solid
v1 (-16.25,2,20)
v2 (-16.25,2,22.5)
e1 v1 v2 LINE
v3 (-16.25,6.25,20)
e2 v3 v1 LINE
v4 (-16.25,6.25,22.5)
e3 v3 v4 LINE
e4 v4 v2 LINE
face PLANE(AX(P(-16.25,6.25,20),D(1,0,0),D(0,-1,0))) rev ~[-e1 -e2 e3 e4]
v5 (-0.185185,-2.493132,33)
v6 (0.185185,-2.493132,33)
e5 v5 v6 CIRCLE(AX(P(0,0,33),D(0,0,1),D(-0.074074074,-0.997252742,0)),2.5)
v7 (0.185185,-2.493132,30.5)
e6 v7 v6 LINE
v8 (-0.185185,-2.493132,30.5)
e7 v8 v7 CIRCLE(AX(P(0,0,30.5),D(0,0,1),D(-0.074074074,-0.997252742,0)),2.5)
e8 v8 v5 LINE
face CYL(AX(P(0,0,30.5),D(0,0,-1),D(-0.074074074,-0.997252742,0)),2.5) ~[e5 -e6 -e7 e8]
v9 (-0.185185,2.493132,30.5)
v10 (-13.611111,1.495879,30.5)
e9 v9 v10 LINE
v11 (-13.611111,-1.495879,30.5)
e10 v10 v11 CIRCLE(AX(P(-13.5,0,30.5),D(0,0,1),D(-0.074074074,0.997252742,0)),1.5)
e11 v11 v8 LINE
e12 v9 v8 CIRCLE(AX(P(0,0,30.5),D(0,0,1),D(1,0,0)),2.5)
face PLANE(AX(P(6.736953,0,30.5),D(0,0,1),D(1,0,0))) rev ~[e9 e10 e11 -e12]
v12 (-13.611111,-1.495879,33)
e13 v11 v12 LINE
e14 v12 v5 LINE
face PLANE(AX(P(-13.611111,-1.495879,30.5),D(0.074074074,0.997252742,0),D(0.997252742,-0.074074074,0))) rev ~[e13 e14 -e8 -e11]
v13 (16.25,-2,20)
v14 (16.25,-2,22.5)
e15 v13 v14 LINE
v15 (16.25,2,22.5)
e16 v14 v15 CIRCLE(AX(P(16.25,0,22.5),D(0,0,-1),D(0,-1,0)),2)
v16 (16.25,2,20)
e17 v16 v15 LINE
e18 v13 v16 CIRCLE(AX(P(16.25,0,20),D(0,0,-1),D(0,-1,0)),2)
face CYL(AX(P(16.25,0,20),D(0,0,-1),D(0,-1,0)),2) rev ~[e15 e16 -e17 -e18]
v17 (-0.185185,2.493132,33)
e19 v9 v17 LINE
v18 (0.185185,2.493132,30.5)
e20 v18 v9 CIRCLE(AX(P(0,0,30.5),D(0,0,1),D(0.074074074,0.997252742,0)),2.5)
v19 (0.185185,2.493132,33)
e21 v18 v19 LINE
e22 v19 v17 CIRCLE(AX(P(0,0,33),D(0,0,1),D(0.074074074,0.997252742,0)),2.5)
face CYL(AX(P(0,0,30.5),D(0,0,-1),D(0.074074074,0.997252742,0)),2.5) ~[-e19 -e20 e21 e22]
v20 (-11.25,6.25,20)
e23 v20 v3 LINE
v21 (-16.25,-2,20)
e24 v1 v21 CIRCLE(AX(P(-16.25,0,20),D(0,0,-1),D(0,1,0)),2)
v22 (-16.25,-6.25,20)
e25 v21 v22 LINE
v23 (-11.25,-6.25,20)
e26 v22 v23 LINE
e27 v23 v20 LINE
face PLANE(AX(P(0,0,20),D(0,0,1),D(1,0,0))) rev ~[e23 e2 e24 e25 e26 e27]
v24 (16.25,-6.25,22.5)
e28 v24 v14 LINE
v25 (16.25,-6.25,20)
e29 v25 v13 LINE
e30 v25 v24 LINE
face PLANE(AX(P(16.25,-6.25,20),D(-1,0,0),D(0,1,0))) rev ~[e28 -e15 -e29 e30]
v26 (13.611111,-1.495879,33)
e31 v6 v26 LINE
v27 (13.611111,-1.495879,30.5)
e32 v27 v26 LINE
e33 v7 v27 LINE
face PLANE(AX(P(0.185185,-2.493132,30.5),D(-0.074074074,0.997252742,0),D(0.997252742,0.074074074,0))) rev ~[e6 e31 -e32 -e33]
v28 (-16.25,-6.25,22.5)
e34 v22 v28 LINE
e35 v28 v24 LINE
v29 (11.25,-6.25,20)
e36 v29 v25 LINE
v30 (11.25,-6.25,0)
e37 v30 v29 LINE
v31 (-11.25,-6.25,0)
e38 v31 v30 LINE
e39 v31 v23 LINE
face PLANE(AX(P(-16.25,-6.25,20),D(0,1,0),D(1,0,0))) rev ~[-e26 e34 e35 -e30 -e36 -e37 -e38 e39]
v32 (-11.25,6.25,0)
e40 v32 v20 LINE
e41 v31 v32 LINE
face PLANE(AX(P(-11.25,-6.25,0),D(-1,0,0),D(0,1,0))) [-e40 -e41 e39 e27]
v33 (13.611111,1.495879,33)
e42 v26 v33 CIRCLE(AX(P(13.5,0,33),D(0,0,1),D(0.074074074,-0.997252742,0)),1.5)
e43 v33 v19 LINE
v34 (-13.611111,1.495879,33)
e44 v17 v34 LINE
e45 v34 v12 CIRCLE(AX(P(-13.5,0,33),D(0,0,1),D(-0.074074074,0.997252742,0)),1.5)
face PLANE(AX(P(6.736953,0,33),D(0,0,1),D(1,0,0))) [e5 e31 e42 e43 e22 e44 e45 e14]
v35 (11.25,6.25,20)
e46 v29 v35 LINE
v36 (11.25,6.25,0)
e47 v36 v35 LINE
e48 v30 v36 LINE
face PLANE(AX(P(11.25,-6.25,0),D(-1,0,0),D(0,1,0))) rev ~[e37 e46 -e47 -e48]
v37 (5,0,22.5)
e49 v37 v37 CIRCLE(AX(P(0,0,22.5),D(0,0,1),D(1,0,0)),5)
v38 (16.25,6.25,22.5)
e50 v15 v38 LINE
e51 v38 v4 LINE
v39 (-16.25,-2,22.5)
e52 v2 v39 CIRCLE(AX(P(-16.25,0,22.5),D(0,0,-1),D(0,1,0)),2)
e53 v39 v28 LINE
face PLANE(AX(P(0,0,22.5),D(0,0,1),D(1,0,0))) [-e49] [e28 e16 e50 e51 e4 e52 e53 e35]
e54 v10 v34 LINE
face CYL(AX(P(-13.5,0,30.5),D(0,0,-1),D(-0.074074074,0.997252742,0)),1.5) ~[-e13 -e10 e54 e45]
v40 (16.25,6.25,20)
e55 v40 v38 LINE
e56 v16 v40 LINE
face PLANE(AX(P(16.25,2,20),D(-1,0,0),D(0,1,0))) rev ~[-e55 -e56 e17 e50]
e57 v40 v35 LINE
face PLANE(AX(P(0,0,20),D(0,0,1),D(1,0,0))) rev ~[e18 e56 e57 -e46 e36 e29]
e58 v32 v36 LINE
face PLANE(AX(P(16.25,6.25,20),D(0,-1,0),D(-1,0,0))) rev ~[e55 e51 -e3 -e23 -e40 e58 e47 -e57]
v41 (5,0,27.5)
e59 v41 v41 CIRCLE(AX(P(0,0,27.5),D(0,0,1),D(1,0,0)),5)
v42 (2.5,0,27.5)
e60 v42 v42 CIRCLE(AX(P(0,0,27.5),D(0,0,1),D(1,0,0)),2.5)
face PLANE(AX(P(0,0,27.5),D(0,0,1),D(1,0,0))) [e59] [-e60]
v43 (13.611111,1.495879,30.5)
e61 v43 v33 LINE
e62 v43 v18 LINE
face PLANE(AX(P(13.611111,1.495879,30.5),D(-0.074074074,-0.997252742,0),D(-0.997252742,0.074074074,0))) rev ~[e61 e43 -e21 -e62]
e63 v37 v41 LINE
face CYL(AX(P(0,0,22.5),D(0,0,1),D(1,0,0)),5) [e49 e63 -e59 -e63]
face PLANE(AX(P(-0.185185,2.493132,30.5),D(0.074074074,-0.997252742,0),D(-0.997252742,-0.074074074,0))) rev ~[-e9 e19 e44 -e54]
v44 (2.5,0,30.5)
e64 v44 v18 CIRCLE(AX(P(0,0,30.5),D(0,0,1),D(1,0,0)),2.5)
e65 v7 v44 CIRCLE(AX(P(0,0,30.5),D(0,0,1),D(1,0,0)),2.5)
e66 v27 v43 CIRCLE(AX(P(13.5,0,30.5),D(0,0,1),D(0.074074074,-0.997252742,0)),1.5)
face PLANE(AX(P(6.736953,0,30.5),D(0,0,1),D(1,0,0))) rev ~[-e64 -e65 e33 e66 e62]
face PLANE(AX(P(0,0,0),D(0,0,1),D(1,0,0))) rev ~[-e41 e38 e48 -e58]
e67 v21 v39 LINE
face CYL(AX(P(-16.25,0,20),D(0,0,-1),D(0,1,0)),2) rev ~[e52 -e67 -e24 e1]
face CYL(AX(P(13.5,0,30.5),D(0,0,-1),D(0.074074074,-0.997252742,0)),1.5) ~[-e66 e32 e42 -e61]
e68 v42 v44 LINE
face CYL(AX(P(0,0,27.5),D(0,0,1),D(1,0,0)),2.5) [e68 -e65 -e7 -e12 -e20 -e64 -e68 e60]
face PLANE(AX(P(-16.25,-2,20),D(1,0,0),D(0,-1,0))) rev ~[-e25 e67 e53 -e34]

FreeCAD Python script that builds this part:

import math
import FreeCAD as App
import Part
import Sketcher

V = App.Vector
Q = App.Units.Quantity


def add_polygon(sketch, points):
    """Adds a closed chain of lines whose ends are joined by coincident constraints."""
    first, n = sketch.GeometryCount, len(points)
    for a, b in zip(points, points[1:] + points[:1]):
        sketch.addGeometry(Part.LineSegment(App.Vector(*a, 0), App.Vector(*b, 0)), False)
    for i in range(n):
        sketch.addConstraint(Sketcher.Constraint("Coincident", first + i, 2, first + (i + 1) % n, 1))

doc = App.newDocument("Part")
body = doc.addObject("PartDesign::Body", "Body")

sketch1 = body.newObject("Sketcher::SketchObject", "Sketch")
sketch1.AttachmentSupport = (doc.getObject("XY_Plane"), [""])
sketch1.MapMode = "FlatFace"
add_polygon(sketch1, [(-11, 6), (-11, -6), (11, -6), (11, 6)])
sketch1.addConstraint([
    Sketcher.Constraint("Vertical", 0),
    Sketcher.Constraint("Horizontal", 1),
    Sketcher.Constraint("Vertical", 2),
    Sketcher.Constraint("Horizontal", 3),
    Sketcher.Constraint("Symmetric", 0, 2, 2, 2, -1, 1),
    Sketcher.Constraint("DistanceX", 1, 1, 1, 2, Q("22.5 mm")),
    Sketcher.Constraint("DistanceY", 0, 2, 0, 1, Q("12.5 mm")),
])
pad1 = body.newObject("PartDesign::Pad", "Pad")
pad1.Profile = sketch1
pad1.Length = 20

sketch2 = body.newObject("Sketcher::SketchObject", "Sketch001")
sketch2.AttachmentSupport = (doc.getObject("XY_Plane"), [""])
sketch2.MapMode = "FlatFace"
sketch2.AttachmentOffset = App.Placement(V(0, 0, 20), App.Rotation())
sketch2.addGeometry([
    Part.LineSegment(V(16.2, 2, 0), V(16.2, 6.2, 0)),
    Part.LineSegment(V(16.2, 6.2, 0), V(-16.2, 6.2, 0)),
    Part.LineSegment(V(-16.2, 6.2, 0), V(-16.2, 2, 0)),
    Part.ArcOfCircle(Part.Circle(V(-16.2, 0, 0), V(0, 0, 1), 2), math.radians(-90), math.radians(90)),
    Part.LineSegment(V(-16.2, -2, 0), V(-16.2, -6.2, 0)),
    Part.LineSegment(V(-16.2, -6.2, 0), V(16.2, -6.2, 0)),
    Part.LineSegment(V(16.2, -6.2, 0), V(16.2, -2, 0)),
    Part.ArcOfCircle(Part.Circle(V(16.2, 0, 0), V(0, 0, 1), 2), math.radians(90), math.radians(270)),
], False)
sketch2.addConstraint([
    Sketcher.Constraint("Coincident", 0, 2, 1, 1),
    Sketcher.Constraint("Coincident", 1, 2, 2, 1),
    Sketcher.Constraint("Coincident", 2, 2, 3, 2),
    Sketcher.Constraint("Coincident", 3, 1, 4, 1),
    Sketcher.Constraint("Coincident", 4, 2, 5, 1),
    Sketcher.Constraint("Coincident", 5, 2, 6, 1),
    Sketcher.Constraint("Coincident", 6, 2, 7, 2),
    Sketcher.Constraint("Coincident", 7, 1, 0, 1),
    Sketcher.Constraint("Vertical", 0),
    Sketcher.Constraint("Horizontal", 1),
    Sketcher.Constraint("Vertical", 2),
    Sketcher.Constraint("Vertical", 4),
    Sketcher.Constraint("Horizontal", 5),
    Sketcher.Constraint("Vertical", 6),
    Sketcher.Constraint("Equal", 3, 7),
    Sketcher.Constraint("Symmetric", 3, 3, 7, 3, -1, 1),
    Sketcher.Constraint("Symmetric", 0, 2, 4, 2, -1, 1),
    Sketcher.Constraint("Symmetric", 3, 1, 6, 2, -2),
    Sketcher.Constraint("Vertical", 7, 3, 0, 2),
    Sketcher.Constraint("Vertical", 3, 3, 1, 2),
    Sketcher.Constraint("Radius", 3, Q("2 mm")),
    Sketcher.Constraint("DistanceX", 1, 2, 1, 1, Q("32.5 mm")),
    Sketcher.Constraint("DistanceY", 0, 1, 0, 2, Q("4.25 mm")),
])
pad2 = body.newObject("PartDesign::Pad", "Pad001")
pad2.Profile = sketch2
pad2.Length = 2.5

sketch3 = body.newObject("Sketcher::SketchObject", "Sketch002")
sketch3.AttachmentSupport = (doc.getObject("XZ_Plane"), [""])
sketch3.MapMode = "FlatFace"
add_polygon(sketch3, [(0, 22.5), (5, 22.5), (5, 27.5), (2.5, 27.5), (2.5, 30.5), (0, 30.5)])
sketch3.addConstraint([
    Sketcher.Constraint("Horizontal", 0),
    Sketcher.Constraint("Vertical", 1),
    Sketcher.Constraint("Horizontal", 2),
    Sketcher.Constraint("Vertical", 3),
    Sketcher.Constraint("Horizontal", 4),
    Sketcher.Constraint("Vertical", 5),
    Sketcher.Constraint("PointOnObject", 4, 2, -2),
    Sketcher.Constraint("Equal", 2, 4),
    Sketcher.Constraint("Equal", 0, 1),
    Sketcher.Constraint("DistanceX", 0, 1, 0, 2, Q("5 mm")),
    Sketcher.Constraint("DistanceY", 3, 1, 3, 2, Q("3 mm")),
    Sketcher.Constraint("DistanceY", -1, 1, 0, 2, Q("22.5 mm")),
])
revolution = body.newObject("PartDesign::Revolution", "Revolution")
revolution.Profile = sketch3
revolution.ReferenceAxis = (sketch3, ["V_Axis"])
revolution.Angle = 360

sketch4 = body.newObject("Sketcher::SketchObject", "Sketch003")
sketch4.AttachmentSupport = (doc.getObject("XY_Plane"), [""])
sketch4.MapMode = "FlatFace"
sketch4.AttachmentOffset = App.Placement(V(0, 0, 30.5), App.Rotation())
sketch4.addGeometry([
    Part.LineSegment(V(0.19, -2.49, 0), V(13.61, -1.5, 0)),
    Part.ArcOfCircle(Part.Circle(V(13.5, 0, 0), V(0, 0, 1), 1.5), math.radians(-86), math.radians(86)),
    Part.LineSegment(V(13.61, 1.5, 0), V(0.19, 2.49, 0)),
    Part.ArcOfCircle(Part.Circle(V(0, 0, 0), V(0, 0, 1), 2.5), math.radians(85.75), math.radians(94.25)),
    Part.LineSegment(V(-0.19, 2.49, 0), V(-13.61, 1.5, 0)),
    Part.ArcOfCircle(Part.Circle(V(-13.5, 0, 0), V(0, 0, 1), 1.5), math.radians(94), math.radians(266)),
    Part.LineSegment(V(-13.61, -1.5, 0), V(-0.19, -2.49, 0)),
    Part.ArcOfCircle(Part.Circle(V(0, 0, 0), V(0, 0, 1), 2.5), math.radians(-94.25), math.radians(-85.75)),
], False)
sketch4.addConstraint([
    Sketcher.Constraint("Tangent", 0, 2, 1, 1),
    Sketcher.Constraint("Tangent", 1, 2, 2, 1),
    Sketcher.Constraint("Tangent", 2, 2, 3, 1),
    Sketcher.Constraint("Tangent", 3, 2, 4, 1),
    Sketcher.Constraint("Tangent", 4, 2, 5, 1),
    Sketcher.Constraint("Tangent", 5, 2, 6, 1),
    Sketcher.Constraint("Tangent", 6, 2, 7, 1),
    Sketcher.Constraint("Tangent", 7, 2, 0, 1),
    Sketcher.Constraint("Coincident", 3, 3, -1, 1),
    Sketcher.Constraint("Coincident", 7, 3, -1, 1),
    Sketcher.Constraint("Equal", 1, 5),
    Sketcher.Constraint("Equal", 3, 7),
    Sketcher.Constraint("Symmetric", 1, 3, 5, 3, -1, 1),
    Sketcher.Constraint("PointOnObject", 1, 3, -1),
    Sketcher.Constraint("Radius", 1, Q("1.5 mm")),
    Sketcher.Constraint("Radius", 3, Q("2.5 mm")),
    Sketcher.Constraint("DistanceX", 5, 3, 1, 3, Q("27 mm")),
])
pad3 = body.newObject("PartDesign::Pad", "Pad002")
pad3.Profile = sketch4
pad3.Length = 2.5

doc.recompute()
